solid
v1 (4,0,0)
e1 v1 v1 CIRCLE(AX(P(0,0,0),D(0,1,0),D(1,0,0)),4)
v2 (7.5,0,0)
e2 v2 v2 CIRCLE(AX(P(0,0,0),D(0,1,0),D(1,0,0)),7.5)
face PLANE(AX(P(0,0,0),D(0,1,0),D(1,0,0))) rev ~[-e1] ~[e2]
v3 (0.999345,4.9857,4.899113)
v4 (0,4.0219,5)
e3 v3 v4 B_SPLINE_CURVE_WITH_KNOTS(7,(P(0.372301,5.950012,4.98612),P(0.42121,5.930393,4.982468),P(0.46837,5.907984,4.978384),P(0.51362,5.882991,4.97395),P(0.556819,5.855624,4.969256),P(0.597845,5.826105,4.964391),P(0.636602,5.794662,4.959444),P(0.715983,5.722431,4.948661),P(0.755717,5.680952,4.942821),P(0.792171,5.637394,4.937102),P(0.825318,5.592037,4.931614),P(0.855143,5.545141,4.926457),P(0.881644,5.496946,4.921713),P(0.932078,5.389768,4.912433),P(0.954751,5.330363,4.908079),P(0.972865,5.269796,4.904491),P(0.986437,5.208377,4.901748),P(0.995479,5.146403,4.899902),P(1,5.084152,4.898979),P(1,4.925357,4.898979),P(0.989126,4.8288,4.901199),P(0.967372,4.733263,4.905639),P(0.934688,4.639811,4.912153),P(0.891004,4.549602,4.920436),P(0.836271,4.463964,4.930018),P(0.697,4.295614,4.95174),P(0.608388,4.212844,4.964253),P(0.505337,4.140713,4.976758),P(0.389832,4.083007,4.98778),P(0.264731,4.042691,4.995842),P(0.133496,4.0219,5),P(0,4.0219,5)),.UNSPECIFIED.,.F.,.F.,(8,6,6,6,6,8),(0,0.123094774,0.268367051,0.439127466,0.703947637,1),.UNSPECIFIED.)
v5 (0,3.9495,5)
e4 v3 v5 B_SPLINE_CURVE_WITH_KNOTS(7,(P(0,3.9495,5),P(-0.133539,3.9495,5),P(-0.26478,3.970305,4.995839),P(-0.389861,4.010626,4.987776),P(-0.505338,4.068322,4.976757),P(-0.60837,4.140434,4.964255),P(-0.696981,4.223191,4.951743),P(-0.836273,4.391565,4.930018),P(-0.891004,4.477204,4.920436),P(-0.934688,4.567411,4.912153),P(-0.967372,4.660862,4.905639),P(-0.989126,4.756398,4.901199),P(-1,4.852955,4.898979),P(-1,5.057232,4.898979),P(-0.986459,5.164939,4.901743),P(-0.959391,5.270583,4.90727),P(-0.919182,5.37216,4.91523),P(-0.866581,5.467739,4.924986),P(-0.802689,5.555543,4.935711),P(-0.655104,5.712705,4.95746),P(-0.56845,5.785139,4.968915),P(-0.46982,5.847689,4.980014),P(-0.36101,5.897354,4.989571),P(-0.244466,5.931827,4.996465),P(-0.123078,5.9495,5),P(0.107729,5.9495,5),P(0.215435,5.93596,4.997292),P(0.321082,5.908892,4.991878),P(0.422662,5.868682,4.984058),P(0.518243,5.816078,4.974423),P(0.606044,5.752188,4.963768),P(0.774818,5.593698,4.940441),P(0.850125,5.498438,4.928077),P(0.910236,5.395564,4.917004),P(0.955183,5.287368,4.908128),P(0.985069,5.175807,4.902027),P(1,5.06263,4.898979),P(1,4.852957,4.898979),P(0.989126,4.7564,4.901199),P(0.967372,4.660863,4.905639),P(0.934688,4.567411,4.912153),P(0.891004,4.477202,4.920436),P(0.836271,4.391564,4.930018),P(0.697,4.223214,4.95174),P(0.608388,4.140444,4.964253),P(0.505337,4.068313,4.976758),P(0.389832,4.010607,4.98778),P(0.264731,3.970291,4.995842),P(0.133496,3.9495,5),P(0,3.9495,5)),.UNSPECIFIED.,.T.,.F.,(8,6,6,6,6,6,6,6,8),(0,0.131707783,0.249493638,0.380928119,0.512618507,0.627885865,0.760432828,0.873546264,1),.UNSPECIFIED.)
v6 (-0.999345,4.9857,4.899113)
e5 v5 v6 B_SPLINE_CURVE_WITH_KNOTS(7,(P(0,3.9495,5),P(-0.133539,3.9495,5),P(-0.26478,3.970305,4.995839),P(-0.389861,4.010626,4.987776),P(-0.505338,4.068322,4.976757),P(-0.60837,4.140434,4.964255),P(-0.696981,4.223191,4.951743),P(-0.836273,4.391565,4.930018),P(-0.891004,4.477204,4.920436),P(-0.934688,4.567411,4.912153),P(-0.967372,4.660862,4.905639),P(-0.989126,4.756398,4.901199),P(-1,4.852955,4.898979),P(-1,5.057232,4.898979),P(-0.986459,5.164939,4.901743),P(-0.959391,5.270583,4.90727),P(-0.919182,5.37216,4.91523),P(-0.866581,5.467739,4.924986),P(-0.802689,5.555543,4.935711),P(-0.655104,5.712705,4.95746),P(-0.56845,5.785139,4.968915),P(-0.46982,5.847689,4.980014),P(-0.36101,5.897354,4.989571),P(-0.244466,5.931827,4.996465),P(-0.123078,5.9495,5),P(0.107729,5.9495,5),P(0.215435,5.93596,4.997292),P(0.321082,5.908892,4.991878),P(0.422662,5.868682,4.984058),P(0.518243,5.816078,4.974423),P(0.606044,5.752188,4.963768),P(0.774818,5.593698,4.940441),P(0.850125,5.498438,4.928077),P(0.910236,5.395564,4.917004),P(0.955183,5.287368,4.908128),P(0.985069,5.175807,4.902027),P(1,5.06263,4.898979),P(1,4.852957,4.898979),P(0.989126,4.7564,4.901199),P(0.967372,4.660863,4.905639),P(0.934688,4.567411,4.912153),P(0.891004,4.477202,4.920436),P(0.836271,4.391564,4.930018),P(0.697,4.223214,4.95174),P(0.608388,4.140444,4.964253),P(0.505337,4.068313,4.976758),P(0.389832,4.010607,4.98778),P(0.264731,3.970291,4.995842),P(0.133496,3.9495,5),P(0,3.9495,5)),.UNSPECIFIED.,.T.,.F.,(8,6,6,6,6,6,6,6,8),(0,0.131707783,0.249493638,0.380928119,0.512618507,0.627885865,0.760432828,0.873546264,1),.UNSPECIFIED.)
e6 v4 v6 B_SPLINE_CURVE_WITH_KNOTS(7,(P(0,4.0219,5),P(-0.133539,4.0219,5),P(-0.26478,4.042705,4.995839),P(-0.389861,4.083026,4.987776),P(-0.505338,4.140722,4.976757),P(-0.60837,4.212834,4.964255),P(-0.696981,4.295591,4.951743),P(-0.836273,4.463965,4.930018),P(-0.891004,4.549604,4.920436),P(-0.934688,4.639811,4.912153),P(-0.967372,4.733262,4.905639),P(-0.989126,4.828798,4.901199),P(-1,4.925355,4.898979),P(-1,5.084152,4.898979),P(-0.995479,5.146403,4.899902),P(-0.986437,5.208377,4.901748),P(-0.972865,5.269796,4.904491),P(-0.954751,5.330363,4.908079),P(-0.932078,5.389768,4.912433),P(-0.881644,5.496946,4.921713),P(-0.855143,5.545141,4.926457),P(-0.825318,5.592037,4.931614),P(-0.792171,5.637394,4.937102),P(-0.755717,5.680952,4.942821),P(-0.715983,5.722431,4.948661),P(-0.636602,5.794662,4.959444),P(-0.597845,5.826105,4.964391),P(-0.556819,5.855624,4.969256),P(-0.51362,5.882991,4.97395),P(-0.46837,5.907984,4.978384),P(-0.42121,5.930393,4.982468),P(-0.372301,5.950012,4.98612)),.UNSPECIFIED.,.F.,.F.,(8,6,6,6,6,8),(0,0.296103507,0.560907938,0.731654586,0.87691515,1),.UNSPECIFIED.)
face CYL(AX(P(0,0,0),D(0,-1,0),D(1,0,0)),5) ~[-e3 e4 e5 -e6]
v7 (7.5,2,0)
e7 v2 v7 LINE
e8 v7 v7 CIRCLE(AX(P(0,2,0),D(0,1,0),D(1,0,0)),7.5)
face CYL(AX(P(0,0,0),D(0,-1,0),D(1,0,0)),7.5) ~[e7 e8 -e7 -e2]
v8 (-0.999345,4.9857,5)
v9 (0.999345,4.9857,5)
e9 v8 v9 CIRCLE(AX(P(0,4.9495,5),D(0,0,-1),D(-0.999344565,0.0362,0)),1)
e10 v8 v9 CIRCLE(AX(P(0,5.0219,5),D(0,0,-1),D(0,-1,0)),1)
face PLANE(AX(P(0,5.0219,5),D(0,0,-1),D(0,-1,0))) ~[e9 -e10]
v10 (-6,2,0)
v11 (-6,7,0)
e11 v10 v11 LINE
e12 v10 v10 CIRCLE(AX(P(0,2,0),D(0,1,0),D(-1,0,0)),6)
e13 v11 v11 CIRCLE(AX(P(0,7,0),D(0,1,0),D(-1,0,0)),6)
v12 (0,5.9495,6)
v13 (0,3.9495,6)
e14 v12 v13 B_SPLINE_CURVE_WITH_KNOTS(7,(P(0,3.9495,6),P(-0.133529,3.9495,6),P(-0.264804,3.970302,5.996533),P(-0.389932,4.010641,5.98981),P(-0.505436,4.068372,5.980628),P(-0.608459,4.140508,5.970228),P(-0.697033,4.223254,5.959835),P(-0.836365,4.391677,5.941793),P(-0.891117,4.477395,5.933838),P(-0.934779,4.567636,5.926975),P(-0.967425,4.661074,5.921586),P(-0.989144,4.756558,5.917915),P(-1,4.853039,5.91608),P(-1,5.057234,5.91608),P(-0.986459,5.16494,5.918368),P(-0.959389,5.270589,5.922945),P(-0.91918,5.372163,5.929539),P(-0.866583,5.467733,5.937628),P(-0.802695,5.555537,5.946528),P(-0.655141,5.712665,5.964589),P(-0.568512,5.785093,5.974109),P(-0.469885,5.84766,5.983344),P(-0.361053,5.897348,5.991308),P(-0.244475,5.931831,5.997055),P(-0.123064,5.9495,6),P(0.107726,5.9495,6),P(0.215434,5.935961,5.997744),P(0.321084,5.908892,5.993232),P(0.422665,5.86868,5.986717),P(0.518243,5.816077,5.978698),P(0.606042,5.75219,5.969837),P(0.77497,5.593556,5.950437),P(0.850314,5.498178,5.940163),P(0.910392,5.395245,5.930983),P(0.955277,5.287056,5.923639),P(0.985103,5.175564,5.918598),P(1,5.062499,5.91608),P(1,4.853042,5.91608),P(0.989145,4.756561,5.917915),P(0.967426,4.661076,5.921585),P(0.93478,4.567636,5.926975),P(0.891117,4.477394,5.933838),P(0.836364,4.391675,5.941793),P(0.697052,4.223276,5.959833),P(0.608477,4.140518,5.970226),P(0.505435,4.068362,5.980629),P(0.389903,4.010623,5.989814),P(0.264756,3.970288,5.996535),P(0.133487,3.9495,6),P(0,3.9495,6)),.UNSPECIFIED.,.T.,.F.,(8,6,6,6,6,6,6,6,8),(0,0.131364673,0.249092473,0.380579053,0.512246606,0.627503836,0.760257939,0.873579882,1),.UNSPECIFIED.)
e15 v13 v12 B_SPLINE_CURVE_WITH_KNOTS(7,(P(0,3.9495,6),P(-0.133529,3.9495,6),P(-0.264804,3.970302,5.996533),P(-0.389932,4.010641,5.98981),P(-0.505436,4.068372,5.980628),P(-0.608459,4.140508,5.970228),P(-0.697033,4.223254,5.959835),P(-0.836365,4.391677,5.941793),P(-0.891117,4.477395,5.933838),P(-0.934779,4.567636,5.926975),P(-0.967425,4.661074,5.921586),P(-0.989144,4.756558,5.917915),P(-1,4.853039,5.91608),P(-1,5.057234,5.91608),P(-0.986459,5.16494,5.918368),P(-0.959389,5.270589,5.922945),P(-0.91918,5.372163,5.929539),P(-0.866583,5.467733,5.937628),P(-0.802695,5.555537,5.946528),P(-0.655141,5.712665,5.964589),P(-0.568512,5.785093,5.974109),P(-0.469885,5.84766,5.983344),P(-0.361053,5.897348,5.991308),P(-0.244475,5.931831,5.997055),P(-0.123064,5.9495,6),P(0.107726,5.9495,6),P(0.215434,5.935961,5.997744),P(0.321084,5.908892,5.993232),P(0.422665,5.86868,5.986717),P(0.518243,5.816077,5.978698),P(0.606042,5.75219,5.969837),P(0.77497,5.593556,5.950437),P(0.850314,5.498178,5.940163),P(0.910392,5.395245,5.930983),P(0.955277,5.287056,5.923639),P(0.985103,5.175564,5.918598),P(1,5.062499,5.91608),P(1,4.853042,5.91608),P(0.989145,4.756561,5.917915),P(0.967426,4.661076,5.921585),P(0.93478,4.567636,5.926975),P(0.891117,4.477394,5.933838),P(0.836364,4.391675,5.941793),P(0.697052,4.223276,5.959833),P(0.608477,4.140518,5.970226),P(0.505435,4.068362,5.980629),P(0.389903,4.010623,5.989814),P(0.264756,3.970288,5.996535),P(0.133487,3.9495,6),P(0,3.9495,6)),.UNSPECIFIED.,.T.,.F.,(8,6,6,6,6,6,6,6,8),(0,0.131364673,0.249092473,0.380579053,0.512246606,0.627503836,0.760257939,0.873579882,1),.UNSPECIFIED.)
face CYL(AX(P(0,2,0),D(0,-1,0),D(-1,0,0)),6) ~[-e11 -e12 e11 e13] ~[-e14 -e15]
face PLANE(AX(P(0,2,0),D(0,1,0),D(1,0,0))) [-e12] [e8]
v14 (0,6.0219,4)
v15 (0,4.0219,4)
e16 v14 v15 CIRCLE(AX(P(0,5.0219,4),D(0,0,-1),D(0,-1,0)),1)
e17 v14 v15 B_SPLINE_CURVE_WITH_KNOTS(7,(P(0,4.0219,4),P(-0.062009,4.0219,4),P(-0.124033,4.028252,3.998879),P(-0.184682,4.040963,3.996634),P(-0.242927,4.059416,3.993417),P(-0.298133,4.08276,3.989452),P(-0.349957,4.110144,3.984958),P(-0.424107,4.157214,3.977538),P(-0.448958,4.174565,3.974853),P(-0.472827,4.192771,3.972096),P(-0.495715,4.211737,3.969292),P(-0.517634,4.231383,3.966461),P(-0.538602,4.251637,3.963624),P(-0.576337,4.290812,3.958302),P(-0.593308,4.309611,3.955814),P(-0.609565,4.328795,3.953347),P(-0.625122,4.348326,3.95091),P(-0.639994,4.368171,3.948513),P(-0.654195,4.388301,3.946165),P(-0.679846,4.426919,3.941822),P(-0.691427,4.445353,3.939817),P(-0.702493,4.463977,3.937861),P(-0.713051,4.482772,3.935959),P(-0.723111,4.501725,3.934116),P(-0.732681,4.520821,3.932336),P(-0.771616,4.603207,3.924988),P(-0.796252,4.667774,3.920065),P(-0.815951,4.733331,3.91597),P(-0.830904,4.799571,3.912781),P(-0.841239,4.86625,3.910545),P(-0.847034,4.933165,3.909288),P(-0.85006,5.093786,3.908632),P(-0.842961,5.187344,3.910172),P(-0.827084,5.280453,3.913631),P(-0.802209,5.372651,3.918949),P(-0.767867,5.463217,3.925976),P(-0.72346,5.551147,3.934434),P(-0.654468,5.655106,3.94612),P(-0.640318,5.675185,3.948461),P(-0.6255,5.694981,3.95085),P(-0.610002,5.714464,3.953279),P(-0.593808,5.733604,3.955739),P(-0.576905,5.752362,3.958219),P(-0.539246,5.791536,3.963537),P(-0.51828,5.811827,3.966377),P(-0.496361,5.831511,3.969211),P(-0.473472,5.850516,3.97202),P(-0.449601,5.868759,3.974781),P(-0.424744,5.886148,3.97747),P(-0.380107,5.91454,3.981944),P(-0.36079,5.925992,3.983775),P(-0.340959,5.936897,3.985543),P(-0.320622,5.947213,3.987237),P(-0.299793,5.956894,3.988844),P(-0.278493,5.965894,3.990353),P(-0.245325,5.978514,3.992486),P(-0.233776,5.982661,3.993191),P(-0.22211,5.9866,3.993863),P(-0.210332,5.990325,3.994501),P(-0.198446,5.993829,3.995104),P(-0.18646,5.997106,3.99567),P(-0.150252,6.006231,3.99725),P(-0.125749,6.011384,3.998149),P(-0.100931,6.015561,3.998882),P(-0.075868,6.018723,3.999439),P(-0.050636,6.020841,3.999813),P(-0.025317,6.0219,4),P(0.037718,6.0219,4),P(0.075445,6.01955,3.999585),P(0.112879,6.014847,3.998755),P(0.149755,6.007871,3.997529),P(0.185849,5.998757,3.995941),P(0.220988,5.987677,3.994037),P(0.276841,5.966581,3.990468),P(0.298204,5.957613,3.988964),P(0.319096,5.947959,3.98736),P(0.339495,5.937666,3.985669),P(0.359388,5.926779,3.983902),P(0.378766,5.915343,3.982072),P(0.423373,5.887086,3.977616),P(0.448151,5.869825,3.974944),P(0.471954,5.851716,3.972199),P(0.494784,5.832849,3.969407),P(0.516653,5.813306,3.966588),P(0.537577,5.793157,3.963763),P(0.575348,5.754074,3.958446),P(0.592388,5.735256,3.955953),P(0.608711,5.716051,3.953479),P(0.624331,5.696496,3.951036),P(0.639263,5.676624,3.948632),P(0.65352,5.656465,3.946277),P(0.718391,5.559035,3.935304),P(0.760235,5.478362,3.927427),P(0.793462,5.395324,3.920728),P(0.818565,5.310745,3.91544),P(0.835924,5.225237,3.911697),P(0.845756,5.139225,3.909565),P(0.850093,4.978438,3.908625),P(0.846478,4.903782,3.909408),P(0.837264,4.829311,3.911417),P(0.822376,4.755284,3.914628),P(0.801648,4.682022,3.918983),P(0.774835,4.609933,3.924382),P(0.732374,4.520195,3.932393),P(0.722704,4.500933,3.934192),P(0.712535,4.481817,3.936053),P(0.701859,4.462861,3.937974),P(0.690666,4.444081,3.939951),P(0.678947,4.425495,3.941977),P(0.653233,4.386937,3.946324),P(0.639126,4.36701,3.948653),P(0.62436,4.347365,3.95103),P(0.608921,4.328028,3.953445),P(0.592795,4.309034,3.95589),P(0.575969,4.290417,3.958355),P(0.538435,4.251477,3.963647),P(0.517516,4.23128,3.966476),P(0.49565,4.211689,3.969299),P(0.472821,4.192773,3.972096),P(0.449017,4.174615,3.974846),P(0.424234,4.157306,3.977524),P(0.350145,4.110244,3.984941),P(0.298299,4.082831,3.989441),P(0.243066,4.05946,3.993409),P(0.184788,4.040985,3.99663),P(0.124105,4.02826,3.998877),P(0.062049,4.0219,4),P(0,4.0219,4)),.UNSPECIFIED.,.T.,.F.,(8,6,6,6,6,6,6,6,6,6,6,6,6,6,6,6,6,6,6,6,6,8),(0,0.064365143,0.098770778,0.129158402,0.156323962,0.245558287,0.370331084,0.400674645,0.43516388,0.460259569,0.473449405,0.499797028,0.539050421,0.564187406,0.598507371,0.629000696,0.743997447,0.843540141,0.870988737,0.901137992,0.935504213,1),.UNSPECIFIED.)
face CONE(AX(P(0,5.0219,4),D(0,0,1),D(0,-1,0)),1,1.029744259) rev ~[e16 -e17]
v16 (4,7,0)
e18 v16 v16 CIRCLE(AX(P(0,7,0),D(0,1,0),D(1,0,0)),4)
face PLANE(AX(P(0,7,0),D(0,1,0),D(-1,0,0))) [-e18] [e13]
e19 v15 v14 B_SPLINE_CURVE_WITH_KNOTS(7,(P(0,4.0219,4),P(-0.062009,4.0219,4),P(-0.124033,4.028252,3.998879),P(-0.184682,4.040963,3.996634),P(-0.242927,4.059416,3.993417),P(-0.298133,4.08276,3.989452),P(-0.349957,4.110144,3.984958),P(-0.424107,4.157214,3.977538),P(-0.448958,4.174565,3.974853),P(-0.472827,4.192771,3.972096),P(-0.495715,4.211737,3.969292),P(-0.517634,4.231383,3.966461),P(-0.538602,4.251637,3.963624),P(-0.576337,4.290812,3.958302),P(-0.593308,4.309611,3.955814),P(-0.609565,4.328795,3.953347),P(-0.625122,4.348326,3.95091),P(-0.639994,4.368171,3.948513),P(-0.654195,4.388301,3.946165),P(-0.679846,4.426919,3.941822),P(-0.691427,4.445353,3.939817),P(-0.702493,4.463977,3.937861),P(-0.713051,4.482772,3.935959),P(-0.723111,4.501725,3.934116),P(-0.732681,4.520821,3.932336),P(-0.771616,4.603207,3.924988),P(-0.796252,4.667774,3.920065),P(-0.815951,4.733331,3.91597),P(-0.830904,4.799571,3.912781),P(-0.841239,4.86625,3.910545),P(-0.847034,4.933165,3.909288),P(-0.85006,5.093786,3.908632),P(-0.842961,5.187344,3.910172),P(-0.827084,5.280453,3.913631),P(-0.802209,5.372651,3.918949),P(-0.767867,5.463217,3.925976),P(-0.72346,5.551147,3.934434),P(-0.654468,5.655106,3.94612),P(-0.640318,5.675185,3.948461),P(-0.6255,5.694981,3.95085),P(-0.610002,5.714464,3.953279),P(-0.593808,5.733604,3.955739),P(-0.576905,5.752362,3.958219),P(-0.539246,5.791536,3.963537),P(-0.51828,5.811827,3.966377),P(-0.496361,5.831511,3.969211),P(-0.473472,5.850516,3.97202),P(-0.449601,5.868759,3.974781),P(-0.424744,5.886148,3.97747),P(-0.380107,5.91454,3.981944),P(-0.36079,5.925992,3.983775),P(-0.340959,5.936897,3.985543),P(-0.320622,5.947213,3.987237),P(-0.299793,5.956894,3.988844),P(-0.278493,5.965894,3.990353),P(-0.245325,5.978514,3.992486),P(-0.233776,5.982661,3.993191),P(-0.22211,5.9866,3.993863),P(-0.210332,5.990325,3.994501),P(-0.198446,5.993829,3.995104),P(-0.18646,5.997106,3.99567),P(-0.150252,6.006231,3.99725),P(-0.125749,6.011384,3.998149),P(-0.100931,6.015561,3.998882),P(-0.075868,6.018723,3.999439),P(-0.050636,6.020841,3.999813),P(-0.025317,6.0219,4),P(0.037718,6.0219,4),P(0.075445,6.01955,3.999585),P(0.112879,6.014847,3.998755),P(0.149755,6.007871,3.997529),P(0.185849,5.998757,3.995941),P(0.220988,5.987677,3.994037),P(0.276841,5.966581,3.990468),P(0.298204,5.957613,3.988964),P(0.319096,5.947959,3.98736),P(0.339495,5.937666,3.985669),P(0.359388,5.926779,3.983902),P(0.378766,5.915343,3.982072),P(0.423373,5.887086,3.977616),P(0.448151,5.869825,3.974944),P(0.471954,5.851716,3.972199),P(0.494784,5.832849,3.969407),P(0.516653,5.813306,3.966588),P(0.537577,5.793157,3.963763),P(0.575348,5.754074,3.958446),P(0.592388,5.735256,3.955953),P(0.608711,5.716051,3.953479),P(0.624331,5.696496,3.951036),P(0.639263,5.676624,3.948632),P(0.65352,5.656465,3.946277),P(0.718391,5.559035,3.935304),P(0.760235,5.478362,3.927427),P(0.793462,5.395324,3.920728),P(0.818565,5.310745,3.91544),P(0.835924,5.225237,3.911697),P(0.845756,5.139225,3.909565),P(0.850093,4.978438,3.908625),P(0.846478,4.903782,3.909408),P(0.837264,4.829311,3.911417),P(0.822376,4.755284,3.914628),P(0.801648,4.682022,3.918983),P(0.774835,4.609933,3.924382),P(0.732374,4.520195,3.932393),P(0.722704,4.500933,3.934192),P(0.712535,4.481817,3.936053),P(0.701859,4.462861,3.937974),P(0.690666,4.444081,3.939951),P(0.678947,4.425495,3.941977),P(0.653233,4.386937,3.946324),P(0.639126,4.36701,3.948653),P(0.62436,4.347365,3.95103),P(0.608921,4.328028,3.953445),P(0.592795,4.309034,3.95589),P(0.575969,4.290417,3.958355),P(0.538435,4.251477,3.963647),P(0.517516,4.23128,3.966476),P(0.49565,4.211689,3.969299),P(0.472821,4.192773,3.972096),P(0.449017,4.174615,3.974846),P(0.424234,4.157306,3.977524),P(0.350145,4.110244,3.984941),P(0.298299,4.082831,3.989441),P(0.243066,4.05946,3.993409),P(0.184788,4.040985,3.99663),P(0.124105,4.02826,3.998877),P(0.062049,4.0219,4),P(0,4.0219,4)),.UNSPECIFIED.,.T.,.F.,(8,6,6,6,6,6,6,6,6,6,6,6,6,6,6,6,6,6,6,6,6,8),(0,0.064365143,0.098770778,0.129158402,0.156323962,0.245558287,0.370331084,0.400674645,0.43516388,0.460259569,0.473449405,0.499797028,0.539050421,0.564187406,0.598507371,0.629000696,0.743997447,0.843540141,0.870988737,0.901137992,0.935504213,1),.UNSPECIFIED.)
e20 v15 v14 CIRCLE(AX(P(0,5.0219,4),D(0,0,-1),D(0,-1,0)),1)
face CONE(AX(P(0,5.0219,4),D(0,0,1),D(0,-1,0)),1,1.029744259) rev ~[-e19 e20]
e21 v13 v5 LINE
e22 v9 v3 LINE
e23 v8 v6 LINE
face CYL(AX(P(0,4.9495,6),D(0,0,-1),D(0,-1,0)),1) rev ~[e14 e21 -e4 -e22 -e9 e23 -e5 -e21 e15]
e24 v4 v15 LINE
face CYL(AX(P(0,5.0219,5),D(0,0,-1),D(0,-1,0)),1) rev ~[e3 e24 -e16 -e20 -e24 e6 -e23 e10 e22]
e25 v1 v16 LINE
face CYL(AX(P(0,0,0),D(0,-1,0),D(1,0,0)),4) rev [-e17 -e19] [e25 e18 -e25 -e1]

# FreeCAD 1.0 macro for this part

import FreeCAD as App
import Part
import Sketcher
Q = App.Units.Quantity

doc = App.newDocument("Part")
params = doc.addObject("Spreadsheet::Sheet", "Params")
for row, (alias, value) in enumerate([
    ("sketch1_diameter", "15 mm"),
    ("sketch1_diameter2", "10 mm"),
    ("pad1_length", "2 mm"),
    ("sketch2_diameter", "12 mm"),
    ("sketch2_diameter2", "10 mm"),
    ("pad2_length", "5 mm"),
    ("sketch3_diameter", "2 mm"),
    ("hole_diameter", "2 mm"),
    ("hole_depth", "6 mm"),
    ("sketch4_diameter", "10 mm"),
    ("sketch4_diameter2", "8 mm"),
    ("pad3_length", "7 mm"),
    ("sketch5_diameter", "2 mm"),
    ("hole2_diameter", "2 mm"),
    ("hole2_depth", "1 mm"),
], start=1):
    params.set(f"A{row}", alias)
    params.set(f"B{row}", "=" + value)
    params.setAlias(f"B{row}", alias)

body = doc.addObject("PartDesign::Body", "Body")

sketch1 = doc.addObject("Sketcher::SketchObject", "Sketch")
body.addObject(sketch1)
sketch1.AttachmentSupport = (doc.XZ_Plane, [""])
sketch1.MapMode = "FlatFace"
sketch1.addGeometry([
    Part.Circle(App.Vector(0, 0, 0), App.Vector(0, 0, 1), 8),
    Part.Circle(App.Vector(0, 0, 0), App.Vector(0, 0, 1), 5),
], False)
sketch1.addConstraint([
    Sketcher.Constraint("Coincident", 0, 3, -1, 1),
    Sketcher.Constraint("Coincident", 1, 3, -1, 1),
    Sketcher.Constraint("Diameter", 0, Q("15 mm")),
    Sketcher.Constraint("Diameter", 1, Q("10 mm")),
])
sketch1.setExpression("Constraints[2]", "Params.sketch1_diameter")
sketch1.setExpression("Constraints[3]", "Params.sketch1_diameter2")
pad1 = doc.addObject("PartDesign::Pad", "Pad")
body.addObject(pad1)
pad1.Profile = sketch1
pad1.setExpression("Length", "Params.pad1_length")
pad1.Reversed = True

sketch2 = doc.addObject("Sketcher::SketchObject", "Sketch001")
body.addObject(sketch2)
sketch2.AttachmentSupport = (doc.XZ_Plane, [""])
sketch2.MapMode = "FlatFace"
sketch2.AttachmentOffset = App.Placement(App.Vector(0, 0, -2), App.Rotation())
sketch2.addGeometry([
    Part.Circle(App.Vector(0, 0, 0), App.Vector(0, 0, 1), 6),
    Part.Circle(App.Vector(0, 0, 0), App.Vector(0, 0, 1), 5),
], False)
sketch2.addConstraint([
    Sketcher.Constraint("Coincident", 0, 3, -1, 1),
    Sketcher.Constraint("Coincident", 1, 3, -1, 1),
    Sketcher.Constraint("Diameter", 0, Q("12 mm")),
    Sketcher.Constraint("Diameter", 1, Q("10 mm")),
])
sketch2.setExpression("Constraints[2]", "Params.sketch2_diameter")
sketch2.setExpression("Constraints[3]", "Params.sketch2_diameter2")
pad2 = doc.addObject("PartDesign::Pad", "Pad001")
body.addObject(pad2)
pad2.Profile = sketch2
pad2.setExpression("Length", "Params.pad2_length")
pad2.Reversed = True

sketch3 = doc.addObject("Sketcher::SketchObject", "Sketch002")
body.addObject(sketch3)
sketch3.AttachmentSupport = (doc.XY_Plane, [""])
sketch3.MapMode = "FlatFace"
sketch3.AttachmentOffset = App.Placement(App.Vector(0, 0, 6), App.Rotation())
sketch3.addGeometry(Part.Circle(App.Vector(0, 4.9, 0), App.Vector(0, 0, 1), 1), False)
sketch3.addConstraint([
    Sketcher.Constraint("PointOnObject", 0, 3, -2),
    Sketcher.Constraint("Diameter", 0, Q("2 mm")),
    Sketcher.Constraint("DistanceY", -1, 1, 0, 3, Q("4.9495 mm")),
])
sketch3.setExpression("Constraints[1]", "Params.sketch3_diameter")
doc.recompute()
hole = doc.addObject("PartDesign::Hole", "Hole")
body.addObject(hole)
hole.Profile = sketch3
hole.ThreadType = "None"
hole.setExpression("Diameter", "Params.hole_diameter")
hole.DepthType = "Dimension"
hole.setExpression("Depth", "Params.hole_depth")
hole.DrillPoint = "Angled"
hole.DrillPointAngle = 118

sketch4 = doc.addObject("Sketcher::SketchObject", "Sketch003")
body.addObject(sketch4)
sketch4.AttachmentSupport = (doc.XZ_Plane, [""])
sketch4.MapMode = "FlatFace"
sketch4.addGeometry([
    Part.Circle(App.Vector(0, 0, 0), App.Vector(0, 0, 1), 5),
    Part.Circle(App.Vector(0, 0, 0), App.Vector(0, 0, 1), 4),
], False)
sketch4.addConstraint([
    Sketcher.Constraint("Coincident", 0, 3, -1, 1),
    Sketcher.Constraint("Coincident", 1, 3, -1, 1),
    Sketcher.Constraint("Diameter", 0, Q("10 mm")),
    Sketcher.Constraint("Diameter", 1, Q("8 mm")),
])
sketch4.setExpression("Constraints[2]", "Params.sketch4_diameter")
sketch4.setExpression("Constraints[3]", "Params.sketch4_diameter2")
pad3 = doc.addObject("PartDesign::Pad", "Pad002")
body.addObject(pad3)
pad3.Profile = sketch4
pad3.setExpression("Length", "Params.pad3_length")
pad3.Reversed = True

sketch5 = doc.addObject("Sketcher::SketchObject", "Sketch004")
body.addObject(sketch5)
sketch5.AttachmentSupport = (doc.XY_Plane, [""])
sketch5.MapMode = "FlatFace"
sketch5.AttachmentOffset = App.Placement(App.Vector(0, 0, 5), App.Rotation())
sketch5.addGeometry(Part.Circle(App.Vector(0, 5, 0), App.Vector(0, 0, 1), 1), False)
sketch5.addConstraint([
    Sketcher.Constraint("PointOnObject", 0, 3, -2),
    Sketcher.Constraint("Diameter", 0, Q("2 mm")),
    Sketcher.Constraint("DistanceY", -1, 1, 0, 3, Q("5.022 mm")),
])
sketch5.setExpression("Constraints[1]", "Params.sketch5_diameter")
doc.recompute()
hole2 = doc.addObject("PartDesign::Hole", "Hole001")
body.addObject(hole2)
hole2.Profile = sketch5
hole2.ThreadType = "None"
hole2.setExpression("Diameter", "Params.hole2_diameter")
hole2.DepthType = "Dimension"
hole2.setExpression("Depth", "Params.hole2_depth")
hole2.DrillPoint = "Angled"
hole2.DrillPointAngle = 118

doc.recompute()
